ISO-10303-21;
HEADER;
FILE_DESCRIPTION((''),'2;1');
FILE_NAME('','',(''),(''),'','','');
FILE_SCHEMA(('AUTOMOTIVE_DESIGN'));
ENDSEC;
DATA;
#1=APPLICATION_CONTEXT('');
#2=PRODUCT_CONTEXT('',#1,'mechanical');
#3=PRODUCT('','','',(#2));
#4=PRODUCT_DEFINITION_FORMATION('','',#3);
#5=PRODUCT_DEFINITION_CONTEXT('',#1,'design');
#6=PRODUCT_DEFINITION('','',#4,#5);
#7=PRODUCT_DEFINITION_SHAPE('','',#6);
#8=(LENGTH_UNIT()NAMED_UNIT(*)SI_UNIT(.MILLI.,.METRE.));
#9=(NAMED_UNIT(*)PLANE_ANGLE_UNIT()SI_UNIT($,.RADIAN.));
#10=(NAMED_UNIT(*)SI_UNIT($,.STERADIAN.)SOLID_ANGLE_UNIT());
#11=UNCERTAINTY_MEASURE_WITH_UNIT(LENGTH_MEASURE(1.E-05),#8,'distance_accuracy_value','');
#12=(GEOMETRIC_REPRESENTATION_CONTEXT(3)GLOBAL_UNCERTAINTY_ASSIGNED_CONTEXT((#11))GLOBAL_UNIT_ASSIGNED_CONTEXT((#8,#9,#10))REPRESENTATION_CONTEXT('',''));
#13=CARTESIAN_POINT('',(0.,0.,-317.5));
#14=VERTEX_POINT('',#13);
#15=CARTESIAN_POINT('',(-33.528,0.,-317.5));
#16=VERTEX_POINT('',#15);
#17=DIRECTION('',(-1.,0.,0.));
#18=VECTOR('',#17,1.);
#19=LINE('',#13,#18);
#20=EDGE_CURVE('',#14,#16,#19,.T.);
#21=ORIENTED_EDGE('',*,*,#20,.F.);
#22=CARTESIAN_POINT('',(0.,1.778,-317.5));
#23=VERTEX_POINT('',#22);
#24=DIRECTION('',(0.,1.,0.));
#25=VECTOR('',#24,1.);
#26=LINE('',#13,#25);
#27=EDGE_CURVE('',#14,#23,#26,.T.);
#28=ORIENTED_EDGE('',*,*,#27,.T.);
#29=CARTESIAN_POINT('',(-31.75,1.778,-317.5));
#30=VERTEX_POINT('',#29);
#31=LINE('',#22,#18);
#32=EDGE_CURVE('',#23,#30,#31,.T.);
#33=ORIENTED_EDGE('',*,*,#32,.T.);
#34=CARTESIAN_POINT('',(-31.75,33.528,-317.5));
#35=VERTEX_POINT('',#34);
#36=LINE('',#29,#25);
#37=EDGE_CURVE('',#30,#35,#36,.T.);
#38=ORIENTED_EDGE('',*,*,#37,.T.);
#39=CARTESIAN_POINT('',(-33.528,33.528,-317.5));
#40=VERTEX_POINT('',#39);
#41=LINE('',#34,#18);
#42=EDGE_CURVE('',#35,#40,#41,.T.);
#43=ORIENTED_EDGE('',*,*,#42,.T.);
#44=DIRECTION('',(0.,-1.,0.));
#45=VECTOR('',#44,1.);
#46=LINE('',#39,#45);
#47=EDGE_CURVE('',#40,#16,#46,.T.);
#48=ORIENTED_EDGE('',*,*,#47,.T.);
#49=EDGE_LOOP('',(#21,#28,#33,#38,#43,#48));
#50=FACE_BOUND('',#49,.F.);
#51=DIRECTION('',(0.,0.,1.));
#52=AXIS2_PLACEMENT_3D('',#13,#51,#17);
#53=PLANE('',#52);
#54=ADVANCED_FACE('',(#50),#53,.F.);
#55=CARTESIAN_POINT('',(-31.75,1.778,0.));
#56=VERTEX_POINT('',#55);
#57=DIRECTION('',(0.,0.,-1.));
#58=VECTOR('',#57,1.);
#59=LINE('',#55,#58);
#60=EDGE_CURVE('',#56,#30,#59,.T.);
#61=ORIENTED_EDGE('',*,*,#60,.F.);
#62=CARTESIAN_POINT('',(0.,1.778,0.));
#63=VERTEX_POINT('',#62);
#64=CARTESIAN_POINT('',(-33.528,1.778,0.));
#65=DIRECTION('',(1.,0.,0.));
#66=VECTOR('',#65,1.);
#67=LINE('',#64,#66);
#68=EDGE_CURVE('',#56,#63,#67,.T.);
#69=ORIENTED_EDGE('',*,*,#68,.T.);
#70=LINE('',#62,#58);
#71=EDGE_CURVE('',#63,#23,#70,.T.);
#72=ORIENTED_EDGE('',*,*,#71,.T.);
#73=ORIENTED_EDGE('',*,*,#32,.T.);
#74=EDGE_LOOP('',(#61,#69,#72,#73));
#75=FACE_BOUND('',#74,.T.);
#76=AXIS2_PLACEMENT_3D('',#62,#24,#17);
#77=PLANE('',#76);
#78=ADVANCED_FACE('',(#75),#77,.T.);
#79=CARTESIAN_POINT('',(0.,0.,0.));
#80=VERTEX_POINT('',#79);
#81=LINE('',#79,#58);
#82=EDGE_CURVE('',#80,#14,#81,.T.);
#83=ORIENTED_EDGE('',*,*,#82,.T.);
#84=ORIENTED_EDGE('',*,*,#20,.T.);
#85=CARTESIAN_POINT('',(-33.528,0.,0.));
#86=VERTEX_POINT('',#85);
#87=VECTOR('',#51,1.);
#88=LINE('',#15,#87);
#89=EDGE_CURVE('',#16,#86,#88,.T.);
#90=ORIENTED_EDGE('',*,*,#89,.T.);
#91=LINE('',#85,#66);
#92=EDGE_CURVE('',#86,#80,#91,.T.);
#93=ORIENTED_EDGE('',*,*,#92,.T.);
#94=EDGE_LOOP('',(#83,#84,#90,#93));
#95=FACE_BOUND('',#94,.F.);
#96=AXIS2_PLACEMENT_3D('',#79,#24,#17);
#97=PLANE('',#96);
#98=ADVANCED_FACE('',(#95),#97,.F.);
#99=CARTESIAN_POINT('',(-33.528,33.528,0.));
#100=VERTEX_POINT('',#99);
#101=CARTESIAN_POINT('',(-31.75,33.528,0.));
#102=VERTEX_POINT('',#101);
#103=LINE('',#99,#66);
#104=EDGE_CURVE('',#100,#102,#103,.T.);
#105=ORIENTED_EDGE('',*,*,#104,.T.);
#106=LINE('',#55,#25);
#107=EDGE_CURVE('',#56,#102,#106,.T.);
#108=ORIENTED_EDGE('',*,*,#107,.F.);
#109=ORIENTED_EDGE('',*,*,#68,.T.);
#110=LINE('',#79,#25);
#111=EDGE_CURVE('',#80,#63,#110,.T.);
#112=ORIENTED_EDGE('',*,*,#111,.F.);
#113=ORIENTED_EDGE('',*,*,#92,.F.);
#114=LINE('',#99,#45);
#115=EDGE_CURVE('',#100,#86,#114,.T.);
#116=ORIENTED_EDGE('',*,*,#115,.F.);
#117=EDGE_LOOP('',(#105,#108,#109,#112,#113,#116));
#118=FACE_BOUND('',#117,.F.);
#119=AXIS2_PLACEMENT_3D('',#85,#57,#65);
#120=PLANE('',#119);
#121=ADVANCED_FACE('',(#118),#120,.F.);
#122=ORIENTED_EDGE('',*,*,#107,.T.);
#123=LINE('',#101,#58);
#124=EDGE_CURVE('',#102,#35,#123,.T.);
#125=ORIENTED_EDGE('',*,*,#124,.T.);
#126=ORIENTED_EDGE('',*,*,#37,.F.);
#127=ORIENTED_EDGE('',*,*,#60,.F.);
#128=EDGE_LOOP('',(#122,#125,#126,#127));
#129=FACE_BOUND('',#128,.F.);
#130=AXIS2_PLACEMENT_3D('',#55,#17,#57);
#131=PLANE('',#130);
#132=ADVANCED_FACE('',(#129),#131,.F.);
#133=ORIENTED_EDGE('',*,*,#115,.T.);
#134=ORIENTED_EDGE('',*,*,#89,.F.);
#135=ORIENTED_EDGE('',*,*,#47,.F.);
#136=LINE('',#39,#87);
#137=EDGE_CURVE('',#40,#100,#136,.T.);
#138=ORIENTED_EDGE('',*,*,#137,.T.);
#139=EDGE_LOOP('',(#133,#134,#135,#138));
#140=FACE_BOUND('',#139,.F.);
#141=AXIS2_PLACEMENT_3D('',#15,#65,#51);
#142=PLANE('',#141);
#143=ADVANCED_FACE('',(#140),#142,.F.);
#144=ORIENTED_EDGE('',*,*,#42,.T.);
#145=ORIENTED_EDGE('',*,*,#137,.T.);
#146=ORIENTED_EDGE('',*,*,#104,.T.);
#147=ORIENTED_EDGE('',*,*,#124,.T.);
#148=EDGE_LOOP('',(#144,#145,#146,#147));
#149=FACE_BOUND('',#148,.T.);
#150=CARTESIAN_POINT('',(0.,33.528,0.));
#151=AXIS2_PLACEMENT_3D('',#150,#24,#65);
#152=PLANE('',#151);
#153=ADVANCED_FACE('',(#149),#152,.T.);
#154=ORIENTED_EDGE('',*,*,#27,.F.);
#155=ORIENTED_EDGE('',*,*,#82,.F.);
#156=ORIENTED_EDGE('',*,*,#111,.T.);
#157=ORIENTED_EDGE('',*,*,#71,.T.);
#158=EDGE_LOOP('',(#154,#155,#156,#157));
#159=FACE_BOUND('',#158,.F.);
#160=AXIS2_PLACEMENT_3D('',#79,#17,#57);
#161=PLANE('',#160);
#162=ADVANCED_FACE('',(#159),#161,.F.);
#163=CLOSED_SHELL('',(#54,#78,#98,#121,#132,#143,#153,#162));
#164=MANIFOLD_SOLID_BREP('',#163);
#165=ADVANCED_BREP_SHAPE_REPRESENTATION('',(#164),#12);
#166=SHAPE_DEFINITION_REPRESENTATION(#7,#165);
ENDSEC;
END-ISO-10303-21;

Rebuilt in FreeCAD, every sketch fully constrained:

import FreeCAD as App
import Part
import Sketcher

V = App.Vector
Q = App.Units.Quantity

doc = App.newDocument("Part")
body = doc.addObject("PartDesign::Body", "Body")

# Sketch on XZ plane
sketch1 = body.newObject("Sketcher::SketchObject", "Sketch")
sketch1.AttachmentSupport = (doc.getObject("XZ_Plane"), [""])
sketch1.MapMode = "FlatFace"
sketch1.addGeometry([
    Part.LineSegment(V(-34, 0, 0), V(0, 0, 0)),
    Part.LineSegment(V(0, 0, 0), V(0, -318, 0)),
    Part.LineSegment(V(0, -318, 0), V(-34, -318, 0)),
    Part.LineSegment(V(-34, -318, 0), V(-34, 0, 0)),
], False)
sketch1.addConstraint([
    Sketcher.Constraint("Coincident", 0, 2, 1, 1),
    Sketcher.Constraint("Coincident", 1, 2, 2, 1),
    Sketcher.Constraint("Coincident", 2, 2, 3, 1),
    Sketcher.Constraint("Coincident", 3, 2, 0, 1),
    Sketcher.Constraint("Horizontal", 0),
    Sketcher.Constraint("Vertical", 1),
    Sketcher.Constraint("Horizontal", 2),
    Sketcher.Constraint("Vertical", 3),
    Sketcher.Constraint("Coincident", 0, 2, -1, 1),
    Sketcher.Constraint("DistanceY", 1, 2, 1, 1, Q("12.5 in")),
    Sketcher.Constraint("DistanceX", 0, 1, 0, 2, Q("1.32 in")),
])
pad1 = body.newObject("PartDesign::Pad", "Pad")
pad1.Profile = sketch1
pad1.Length = Q("0.07 in")
pad1.Reversed = True

# Sketch on XZ plane
sketch2 = body.newObject("Sketcher::SketchObject", "Sketch001")
sketch2.AttachmentSupport = (doc.getObject("XZ_Plane"), [""])
sketch2.MapMode = "FlatFace"
sketch2.AttachmentOffset = App.Placement(V(0, 0, -0.07 * 25.4), App.Rotation())
sketch2.addGeometry([
    Part.LineSegment(V(-33.5, -317.5, 0), V(-33.5, 0, 0)),
    Part.LineSegment(V(-33.5, 0, 0), V(-31.8, 0, 0)),
    Part.LineSegment(V(-31.8, 0, 0), V(-31.8, -317.5, 0)),
    Part.LineSegment(V(-31.8, -317.5, 0), V(-33.5, -317.5, 0)),
], False)
sketch2.addConstraint([
    Sketcher.Constraint("Coincident", 0, 2, 1, 1),
    Sketcher.Constraint("Coincident", 1, 2, 2, 1),
    Sketcher.Constraint("Coincident", 2, 2, 3, 1),
    Sketcher.Constraint("Coincident", 3, 2, 0, 1),
    Sketcher.Constraint("Vertical", 0),
    Sketcher.Constraint("Horizontal", 1),
    Sketcher.Constraint("Vertical", 2),
    Sketcher.Constraint("Horizontal", 3),
    Sketcher.Constraint("PointOnObject", 0, 2, -1),
    Sketcher.Constraint("DistanceX", 1, 1, 1, 2, Q("0.07 in")),
    Sketcher.Constraint("DistanceY", 0, 1, 0, 2, Q("12.5 in")),
    Sketcher.Constraint("DistanceX", 0, 2, -1, 1, Q("1.32 in")),
])
pad2 = body.newObject("PartDesign::Pad", "Pad001")
pad2.Profile = sketch2
pad2.Length = Q("1.25 in")
pad2.Reversed = True

doc.recompute()
